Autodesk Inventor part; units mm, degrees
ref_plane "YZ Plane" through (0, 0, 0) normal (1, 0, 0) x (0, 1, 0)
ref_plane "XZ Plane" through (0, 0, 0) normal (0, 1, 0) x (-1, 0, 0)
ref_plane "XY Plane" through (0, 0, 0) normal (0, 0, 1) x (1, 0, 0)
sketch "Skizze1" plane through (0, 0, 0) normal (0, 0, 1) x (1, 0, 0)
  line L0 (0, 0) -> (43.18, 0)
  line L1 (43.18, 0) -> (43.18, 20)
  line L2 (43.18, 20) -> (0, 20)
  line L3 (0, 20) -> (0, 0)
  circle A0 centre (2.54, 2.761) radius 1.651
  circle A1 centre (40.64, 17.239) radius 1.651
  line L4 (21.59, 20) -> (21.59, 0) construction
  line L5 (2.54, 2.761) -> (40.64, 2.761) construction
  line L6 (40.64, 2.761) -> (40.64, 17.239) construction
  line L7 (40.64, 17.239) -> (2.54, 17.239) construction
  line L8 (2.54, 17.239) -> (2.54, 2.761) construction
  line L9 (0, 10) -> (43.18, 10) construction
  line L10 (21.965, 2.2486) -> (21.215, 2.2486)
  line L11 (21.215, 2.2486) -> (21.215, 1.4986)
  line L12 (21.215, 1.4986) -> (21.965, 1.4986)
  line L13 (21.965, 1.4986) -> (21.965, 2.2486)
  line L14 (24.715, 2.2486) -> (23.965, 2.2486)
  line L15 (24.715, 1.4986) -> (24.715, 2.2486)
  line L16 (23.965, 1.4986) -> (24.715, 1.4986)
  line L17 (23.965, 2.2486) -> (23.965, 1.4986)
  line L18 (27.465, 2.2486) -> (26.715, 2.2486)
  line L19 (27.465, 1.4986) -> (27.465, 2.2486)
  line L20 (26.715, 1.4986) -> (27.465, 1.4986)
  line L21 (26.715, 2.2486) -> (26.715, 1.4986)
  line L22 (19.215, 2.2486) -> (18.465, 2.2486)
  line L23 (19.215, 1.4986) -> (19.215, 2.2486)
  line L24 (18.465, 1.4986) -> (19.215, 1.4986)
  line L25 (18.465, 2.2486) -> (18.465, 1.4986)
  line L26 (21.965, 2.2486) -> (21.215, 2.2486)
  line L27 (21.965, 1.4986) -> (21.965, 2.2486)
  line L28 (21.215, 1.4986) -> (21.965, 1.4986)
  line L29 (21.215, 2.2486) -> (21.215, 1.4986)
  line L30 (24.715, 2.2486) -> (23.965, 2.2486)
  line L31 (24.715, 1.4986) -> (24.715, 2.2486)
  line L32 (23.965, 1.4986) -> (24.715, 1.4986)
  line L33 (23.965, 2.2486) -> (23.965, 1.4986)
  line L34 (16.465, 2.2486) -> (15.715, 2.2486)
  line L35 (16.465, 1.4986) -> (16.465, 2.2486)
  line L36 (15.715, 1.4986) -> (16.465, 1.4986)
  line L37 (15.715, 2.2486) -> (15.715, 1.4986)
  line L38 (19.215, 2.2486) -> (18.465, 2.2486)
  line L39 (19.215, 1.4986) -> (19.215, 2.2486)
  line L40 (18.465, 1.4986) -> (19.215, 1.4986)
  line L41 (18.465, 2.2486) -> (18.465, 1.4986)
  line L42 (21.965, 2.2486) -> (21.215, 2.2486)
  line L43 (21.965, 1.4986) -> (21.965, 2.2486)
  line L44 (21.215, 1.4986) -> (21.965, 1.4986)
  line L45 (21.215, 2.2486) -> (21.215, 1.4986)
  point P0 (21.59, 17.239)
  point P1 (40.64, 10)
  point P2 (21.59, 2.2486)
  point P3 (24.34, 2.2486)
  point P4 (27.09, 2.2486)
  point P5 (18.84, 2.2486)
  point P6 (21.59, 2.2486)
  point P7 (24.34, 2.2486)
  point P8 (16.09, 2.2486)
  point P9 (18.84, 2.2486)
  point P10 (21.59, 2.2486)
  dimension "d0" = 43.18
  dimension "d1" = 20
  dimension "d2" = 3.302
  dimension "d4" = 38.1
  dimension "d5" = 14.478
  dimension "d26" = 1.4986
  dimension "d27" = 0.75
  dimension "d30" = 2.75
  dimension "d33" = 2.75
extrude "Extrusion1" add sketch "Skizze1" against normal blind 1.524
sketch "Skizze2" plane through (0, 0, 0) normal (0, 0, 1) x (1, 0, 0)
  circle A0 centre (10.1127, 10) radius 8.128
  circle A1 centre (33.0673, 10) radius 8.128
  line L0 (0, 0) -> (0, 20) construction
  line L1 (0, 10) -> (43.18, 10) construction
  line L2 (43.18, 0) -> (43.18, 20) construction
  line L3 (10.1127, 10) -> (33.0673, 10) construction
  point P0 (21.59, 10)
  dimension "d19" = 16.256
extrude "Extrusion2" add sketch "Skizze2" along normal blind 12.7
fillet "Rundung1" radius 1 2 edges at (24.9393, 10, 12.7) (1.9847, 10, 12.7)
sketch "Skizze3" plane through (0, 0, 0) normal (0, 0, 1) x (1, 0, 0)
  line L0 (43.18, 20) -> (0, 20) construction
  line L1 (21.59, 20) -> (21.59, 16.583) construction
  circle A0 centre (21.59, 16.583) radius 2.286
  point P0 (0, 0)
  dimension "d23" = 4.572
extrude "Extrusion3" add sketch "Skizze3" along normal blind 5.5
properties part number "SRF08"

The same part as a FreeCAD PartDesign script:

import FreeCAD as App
import Part
import Sketcher
from FreeCAD import Vector
Q = App.Units.Quantity


def edges_at(feature, points):
    """Names of the edges that pass closest to the given points."""
    edges = feature.Shape.Edges
    near = lambda p: min(range(len(edges)), key=lambda i: edges[i].distToShape(Part.Vertex(*p))[0])
    return sorted({f"Edge{near(p) + 1}" for p in points})


def add_polygon(sketch, points):
    """Adds a closed chain of lines whose ends are joined by coincident constraints."""
    first, n = sketch.GeometryCount, len(points)
    for a, b in zip(points, points[1:] + points[:1]):
        sketch.addGeometry(Part.LineSegment(App.Vector(*a, 0), App.Vector(*b, 0)), False)
    for i in range(n):
        sketch.addConstraint(Sketcher.Constraint("Coincident", first + i, 2, first + (i + 1) % n, 1))

doc = App.newDocument("Part")
params = doc.addObject("Spreadsheet::Sheet", "Params")
for row, (alias, value) in enumerate([
    ("sketch1_diameter", "0.13 in"),
    ("sketch1_width", "1.7 in"),
    ("pad1_length", "0.06 in"),
    ("sketch2_diameter", "0.64 in"),
    ("pad2_length", "0.5 in"),
    ("fillet_radius", "1 mm"),
    ("sketch3_diameter", "0.18 in"),
    ("pad3_length", "5.5 mm"),
], start=1):
    params.set(f"A{row}", alias)
    params.set(f"B{row}", "=" + value)
    params.setAlias(f"B{row}", alias)

body = doc.addObject("PartDesign::Body", "Body")

sketch1 = doc.addObject("Sketcher::SketchObject", "Sketch")
body.addObject(sketch1)
sketch1.AttachmentSupport = (doc.XY_Plane, [""])
sketch1.MapMode = "FlatFace"
add_polygon(sketch1, [(0, 20), (0, 0), (43.2, 0), (43.2, 20)])
sketch1.addGeometry(Part.Circle(Vector(2.5, 2.8, 0), Vector(0, 0, 1), 1.7), False)
add_polygon(sketch1, [(15.7, 2.2), (16.5, 2.2), (16.5, 1.5), (15.7, 1.5)])
add_polygon(sketch1, [(18.5, 2.2), (19.2, 2.2), (19.2, 1.5), (18.5, 1.5)])
add_polygon(sketch1, [(21.2, 2.2), (22, 2.2), (22, 1.5), (21.2, 1.5)])
add_polygon(sketch1, [(24, 2.2), (24.7, 2.2), (24.7, 1.5), (24, 1.5)])
add_polygon(sketch1, [(26.7, 2.2), (27.5, 2.2), (27.5, 1.5), (26.7, 1.5)])
sketch1.addGeometry(Part.Circle(Vector(40.6, 17.2, 0), Vector(0, 0, 1), 1.7), False)
sketch1.addConstraint([
    Sketcher.Constraint("Vertical", 0),
    Sketcher.Constraint("Horizontal", 1),
    Sketcher.Constraint("Vertical", 2),
    Sketcher.Constraint("Horizontal", 3),
    Sketcher.Constraint("Horizontal", 5),
    Sketcher.Constraint("Vertical", 6),
    Sketcher.Constraint("Horizontal", 7),
    Sketcher.Constraint("Vertical", 8),
    Sketcher.Constraint("Horizontal", 9),
    Sketcher.Constraint("Vertical", 10),
    Sketcher.Constraint("Horizontal", 11),
    Sketcher.Constraint("Vertical", 12),
    Sketcher.Constraint("Horizontal", 13),
    Sketcher.Constraint("Vertical", 14),
    Sketcher.Constraint("Horizontal", 15),
    Sketcher.Constraint("Vertical", 16),
    Sketcher.Constraint("Horizontal", 17),
    Sketcher.Constraint("Vertical", 18),
    Sketcher.Constraint("Horizontal", 19),
    Sketcher.Constraint("Vertical", 20),
    Sketcher.Constraint("Horizontal", 21),
    Sketcher.Constraint("Vertical", 22),
    Sketcher.Constraint("Horizontal", 23),
    Sketcher.Constraint("Vertical", 24),
    Sketcher.Constraint("Coincident", 0, 2, -1, 1),
    Sketcher.Constraint("Equal", 4, 25),
    Sketcher.Constraint("Horizontal", 8, 2, 9, 2),
    Sketcher.Constraint("Horizontal", 7, 2, 10, 2),
    Sketcher.Constraint("Horizontal", 12, 2, 13, 2),
    Sketcher.Constraint("Horizontal", 11, 2, 14, 2),
    Sketcher.Constraint("Horizontal", 16, 2, 17, 2),
    Sketcher.Constraint("Horizontal", 15, 2, 18, 2),
    Sketcher.Constraint("Horizontal", 20, 2, 21, 2),
    Sketcher.Constraint("Horizontal", 19, 2, 22, 2),
    Sketcher.Constraint("Equal", 7, 9),
    Sketcher.Constraint("Equal", 11, 13),
    Sketcher.Constraint("Equal", 15, 17),
    Sketcher.Constraint("Equal", 19, 21),
    Sketcher.Constraint("Equal", 23, 6),
    Sketcher.Constraint("Diameter", 4, Q("0.13 in")),
    Sketcher.Constraint("DistanceX", 1, 1, 1, 2, Q("1.7 in")),
    Sketcher.Constraint("DistanceX", 4, 3, 25, 3, Q("1.5 in")),
    Sketcher.Constraint("DistanceY", 4, 3, 25, 3, Q("0.57 in")),
    Sketcher.Constraint("DistanceY", 0, 2, 0, 1, Q("0.7874 in")),
    Sketcher.Constraint("DistanceY", -1, 1, 6, 2, Q("0.059 in")),
    Sketcher.Constraint("DistanceX", 5, 1, 5, 2, Q("0.75 mm")),
    Sketcher.Constraint("DistanceX", -1, 1, 4, 3, Q("0.1 in")),
    Sketcher.Constraint("DistanceX", 5, 2, 9, 2, Q("2.75 mm")),
    Sketcher.Constraint("DistanceX", 9, 2, 13, 2, Q("2.75 mm")),
    Sketcher.Constraint("DistanceX", 13, 2, 17, 2, Q("2.75 mm")),
    Sketcher.Constraint("DistanceX", 17, 2, 21, 2, Q("2.75 mm")),
    Sketcher.Constraint("DistanceY", -1, 1, 4, 3, Q("0.1087 in")),
    Sketcher.Constraint("DistanceX", -1, 1, 7, 2, Q("0.6187 in")),
])
sketch1.setExpression("Constraints[63]", "Params.sketch1_diameter")
sketch1.setExpression("Constraints[64]", "Params.sketch1_width")
pad1 = doc.addObject("PartDesign::Pad", "Pad")
body.addObject(pad1)
pad1.Profile = sketch1
pad1.setExpression("Length", "Params.pad1_length")
pad1.Reversed = True

sketch2 = doc.addObject("Sketcher::SketchObject", "Sketch001")
body.addObject(sketch2)
sketch2.AttachmentSupport = (doc.XY_Plane, [""])
sketch2.MapMode = "FlatFace"
sketch2.addGeometry([
    Part.Circle(Vector(10, 10, 0), Vector(0, 0, 1), 8),
    Part.Circle(Vector(33, 10, 0), Vector(0, 0, 1), 8),
], False)
sketch2.addConstraint([
    Sketcher.Constraint("Equal", 0, 1),
    Sketcher.Constraint("Horizontal", 0, 3, 1, 3),
    Sketcher.Constraint("Diameter", 0, Q("0.64 in")),
    Sketcher.Constraint("DistanceY", -1, 1, 0, 3, Q("0.3937 in")),
    Sketcher.Constraint("DistanceX", -1, 1, 0, 3, Q("10.1127 mm")),
    Sketcher.Constraint("DistanceX", -1, 1, 1, 3, Q("33.0673 mm")),
])
sketch2.setExpression("Constraints[2]", "Params.sketch2_diameter")
pad2 = doc.addObject("PartDesign::Pad", "Pad001")
body.addObject(pad2)
pad2.Profile = sketch2
pad2.setExpression("Length", "Params.pad2_length")
doc.recompute()

fillet = doc.addObject("PartDesign::Fillet", "Fillet")
body.addObject(fillet)
fillet.Base = (pad2, edges_at(pad2, [(24.939, 10, 12.7), (1.985, 10, 12.7)]))
fillet.setExpression("Radius", "Params.fillet_radius")

sketch3 = doc.addObject("Sketcher::SketchObject", "Sketch002")
body.addObject(sketch3)
sketch3.AttachmentSupport = (doc.XY_Plane, [""])
sketch3.MapMode = "FlatFace"
sketch3.addGeometry(Part.Circle(Vector(21.6, 16.6, 0), Vector(0, 0, 1), 2.3), False)
sketch3.addConstraint([
    Sketcher.Constraint("Diameter", 0, Q("0.18 in")),
    Sketcher.Constraint("DistanceX", -1, 1, 0, 3, Q("0.85 in")),
    Sketcher.Constraint("DistanceY", -1, 1, 0, 3, Q("16.583 mm")),
])
sketch3.setExpression("Constraints[0]", "Params.sketch3_diameter")
pad3 = doc.addObject("PartDesign::Pad", "Pad002")
body.addObject(pad3)
pad3.Profile = sketch3
pad3.setExpression("Length", "Params.pad3_length")

doc.recompute()
